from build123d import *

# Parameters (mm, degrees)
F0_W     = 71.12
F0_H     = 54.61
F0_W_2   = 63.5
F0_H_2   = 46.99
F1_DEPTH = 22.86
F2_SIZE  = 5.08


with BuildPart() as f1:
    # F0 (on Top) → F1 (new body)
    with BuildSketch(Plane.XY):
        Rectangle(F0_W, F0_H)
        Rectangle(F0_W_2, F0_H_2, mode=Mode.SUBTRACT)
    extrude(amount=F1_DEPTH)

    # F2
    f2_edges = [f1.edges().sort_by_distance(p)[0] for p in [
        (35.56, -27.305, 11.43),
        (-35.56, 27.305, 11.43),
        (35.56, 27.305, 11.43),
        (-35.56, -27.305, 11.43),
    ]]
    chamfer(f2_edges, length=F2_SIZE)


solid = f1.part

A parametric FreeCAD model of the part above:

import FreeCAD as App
import Part
import Sketcher

V = App.Vector
Q = App.Units.Quantity


def edges_at(feature, points):
    """Names of the edges that pass closest to the given points."""
    edges = feature.Shape.Edges
    near = lambda p: min(range(len(edges)), key=lambda i: edges[i].distToShape(Part.Vertex(*p))[0])
    return sorted({f"Edge{near(p) + 1}" for p in points})

doc = App.newDocument("Part")
body = doc.addObject("PartDesign::Body", "Body")

sketch1 = body.newObject("Sketcher::SketchObject", "Sketch")
sketch1.AttachmentSupport = (doc.getObject("XY_Plane"), [""])
sketch1.MapMode = "FlatFace"
sketch1.addGeometry(Part.LineSegment(V(-35.56, 27.305, 0), V(-35.56, -27.305, 0)), False)
sketch1.addGeometry(Part.LineSegment(V(-35.56, -27.305, 0), V(35.56, -27.305, 0)), False)
sketch1.addGeometry(Part.LineSegment(V(35.56, -27.305, 0), V(35.56, 27.305, 0)), False)
sketch1.addGeometry(Part.LineSegment(V(35.56, 27.305, 0), V(-35.56, 27.305, 0)), False)
sketch1.addGeometry(Part.LineSegment(V(31.75, -23.495, 0), V(-31.75, -23.495, 0)), False)
sketch1.addGeometry(Part.LineSegment(V(-31.75, -23.495, 0), V(-31.75, 23.495, 0)), False)
sketch1.addGeometry(Part.LineSegment(V(-31.75, 23.495, 0), V(31.75, 23.495, 0)), False)
sketch1.addGeometry(Part.LineSegment(V(31.75, 23.495, 0), V(31.75, -23.495, 0)), False)
sketch1.addConstraint(Sketcher.Constraint("Coincident", 0, 2, 1, 1))
sketch1.addConstraint(Sketcher.Constraint("Coincident", 1, 2, 2, 1))
sketch1.addConstraint(Sketcher.Constraint("Coincident", 2, 2, 3, 1))
sketch1.addConstraint(Sketcher.Constraint("Coincident", 3, 2, 0, 1))
sketch1.addConstraint(Sketcher.Constraint("Coincident", 4, 2, 5, 1))
sketch1.addConstraint(Sketcher.Constraint("Coincident", 5, 2, 6, 1))
sketch1.addConstraint(Sketcher.Constraint("Coincident", 6, 2, 7, 1))
sketch1.addConstraint(Sketcher.Constraint("Coincident", 7, 2, 4, 1))
sketch1.addConstraint(Sketcher.Constraint("Vertical", 0))
sketch1.addConstraint(Sketcher.Constraint("Horizontal", 1))
sketch1.addConstraint(Sketcher.Constraint("Vertical", 2))
sketch1.addConstraint(Sketcher.Constraint("Horizontal", 3))
sketch1.addConstraint(Sketcher.Constraint("Horizontal", 4))
sketch1.addConstraint(Sketcher.Constraint("Vertical", 5))
sketch1.addConstraint(Sketcher.Constraint("Horizontal", 6))
sketch1.addConstraint(Sketcher.Constraint("Vertical", 7))
sketch1.addConstraint(Sketcher.Constraint("Symmetric", 0, 2, 2, 2, -1, 1))
sketch1.addConstraint(Sketcher.Constraint("Symmetric", 4, 2, 6, 2, -1, 1))
sketch1.addConstraint(Sketcher.Constraint("DistanceX", 1, 1, 1, 2, Q("2.8 in")))
sketch1.addConstraint(Sketcher.Constraint("DistanceX", 4, 2, 4, 1, Q("2.5 in")))
sketch1.addConstraint(Sketcher.Constraint("DistanceY", 4, 2, 3, 2, Q("2 in")))
sketch1.addConstraint(Sketcher.Constraint("DistanceY", 0, 2, 0, 1, Q("2.15 in")))
pad1 = body.newObject("PartDesign::Pad", "Pad")
pad1.Profile = sketch1
pad1.Length = Q("0.9 in")
doc.recompute()

chamfer = body.newObject("PartDesign::Chamfer", "Chamfer")
chamfer.Base = (pad1, edges_at(pad1, [
    (35.56, -27.305, 11.43),
    (-35.56, 27.305, 11.43),
    (35.56, 27.305, 11.43),
    (-35.56, -27.305, 11.43),
]))
chamfer.Size = Q("0.2 in")

doc.recompute()
